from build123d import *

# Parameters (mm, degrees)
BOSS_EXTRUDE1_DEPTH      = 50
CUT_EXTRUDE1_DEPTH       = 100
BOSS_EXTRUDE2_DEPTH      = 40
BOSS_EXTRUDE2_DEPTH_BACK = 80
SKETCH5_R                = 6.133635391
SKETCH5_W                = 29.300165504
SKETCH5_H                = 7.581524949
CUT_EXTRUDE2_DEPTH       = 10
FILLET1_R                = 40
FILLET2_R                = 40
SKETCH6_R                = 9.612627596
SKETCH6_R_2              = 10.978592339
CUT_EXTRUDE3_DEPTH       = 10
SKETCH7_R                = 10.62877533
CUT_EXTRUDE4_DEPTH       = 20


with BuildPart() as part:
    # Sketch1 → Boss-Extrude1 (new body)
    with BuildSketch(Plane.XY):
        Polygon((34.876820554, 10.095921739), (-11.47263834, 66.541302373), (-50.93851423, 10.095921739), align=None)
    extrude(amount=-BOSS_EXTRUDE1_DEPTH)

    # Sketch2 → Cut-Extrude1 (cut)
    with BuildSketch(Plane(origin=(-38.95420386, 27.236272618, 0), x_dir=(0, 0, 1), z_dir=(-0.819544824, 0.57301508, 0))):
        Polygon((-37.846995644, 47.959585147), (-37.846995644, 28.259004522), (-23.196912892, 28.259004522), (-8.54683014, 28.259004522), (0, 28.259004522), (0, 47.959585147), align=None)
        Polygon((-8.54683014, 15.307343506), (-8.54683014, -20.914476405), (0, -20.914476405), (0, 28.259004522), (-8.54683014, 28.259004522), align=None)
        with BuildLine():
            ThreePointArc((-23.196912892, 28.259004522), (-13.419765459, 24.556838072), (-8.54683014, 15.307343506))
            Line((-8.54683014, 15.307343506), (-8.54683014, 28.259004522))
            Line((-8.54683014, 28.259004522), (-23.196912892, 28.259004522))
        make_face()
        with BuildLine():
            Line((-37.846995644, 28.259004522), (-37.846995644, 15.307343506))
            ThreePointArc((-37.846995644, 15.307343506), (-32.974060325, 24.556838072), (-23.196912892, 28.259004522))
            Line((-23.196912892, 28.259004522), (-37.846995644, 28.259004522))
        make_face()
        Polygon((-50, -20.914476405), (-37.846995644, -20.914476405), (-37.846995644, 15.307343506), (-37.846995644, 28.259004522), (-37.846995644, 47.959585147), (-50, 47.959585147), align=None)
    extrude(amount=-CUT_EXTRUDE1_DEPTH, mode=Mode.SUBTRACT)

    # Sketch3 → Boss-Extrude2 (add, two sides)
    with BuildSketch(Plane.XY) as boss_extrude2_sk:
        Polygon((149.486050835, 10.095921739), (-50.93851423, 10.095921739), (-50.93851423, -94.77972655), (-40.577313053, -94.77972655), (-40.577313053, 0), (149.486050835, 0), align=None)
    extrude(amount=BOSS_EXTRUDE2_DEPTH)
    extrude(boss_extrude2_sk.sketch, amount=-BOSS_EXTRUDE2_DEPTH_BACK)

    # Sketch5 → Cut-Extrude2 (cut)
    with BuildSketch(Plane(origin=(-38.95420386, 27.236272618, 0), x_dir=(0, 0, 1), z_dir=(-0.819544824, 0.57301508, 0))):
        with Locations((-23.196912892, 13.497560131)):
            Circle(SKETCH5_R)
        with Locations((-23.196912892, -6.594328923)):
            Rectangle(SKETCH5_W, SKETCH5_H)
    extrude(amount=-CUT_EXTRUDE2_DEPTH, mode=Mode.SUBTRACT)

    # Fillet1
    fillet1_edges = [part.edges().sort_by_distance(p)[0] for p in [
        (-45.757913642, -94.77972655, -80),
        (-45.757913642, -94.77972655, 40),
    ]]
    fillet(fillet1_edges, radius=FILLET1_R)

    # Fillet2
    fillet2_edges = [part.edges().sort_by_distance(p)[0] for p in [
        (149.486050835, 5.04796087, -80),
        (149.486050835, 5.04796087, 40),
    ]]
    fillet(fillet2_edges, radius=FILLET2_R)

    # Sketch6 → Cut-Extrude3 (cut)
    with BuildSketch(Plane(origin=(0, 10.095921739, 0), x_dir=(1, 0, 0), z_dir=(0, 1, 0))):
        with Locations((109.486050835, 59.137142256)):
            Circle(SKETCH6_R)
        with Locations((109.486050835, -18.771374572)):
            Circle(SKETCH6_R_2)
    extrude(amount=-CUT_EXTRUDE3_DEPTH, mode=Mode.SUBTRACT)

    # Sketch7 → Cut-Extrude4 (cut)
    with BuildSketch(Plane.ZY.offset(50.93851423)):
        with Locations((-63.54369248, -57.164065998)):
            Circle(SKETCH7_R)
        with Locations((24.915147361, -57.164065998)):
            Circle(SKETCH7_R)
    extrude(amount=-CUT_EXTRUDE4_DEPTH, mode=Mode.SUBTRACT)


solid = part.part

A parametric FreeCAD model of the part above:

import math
import FreeCAD as App
import Part
import Sketcher
from FreeCAD import Vector
Q = App.Units.Quantity


def edges_at(feature, points):
    """Names of the edges that pass closest to the given points."""
    edges = feature.Shape.Edges
    near = lambda p: min(range(len(edges)), key=lambda i: edges[i].distToShape(Part.Vertex(*p))[0])
    return sorted({f"Edge{near(p) + 1}" for p in points})


def add_polygon(sketch, points):
    """Adds a closed chain of lines whose ends are joined by coincident constraints."""
    first, n = sketch.GeometryCount, len(points)
    for a, b in zip(points, points[1:] + points[:1]):
        sketch.addGeometry(Part.LineSegment(App.Vector(*a, 0), App.Vector(*b, 0)), False)
    for i in range(n):
        sketch.addConstraint(Sketcher.Constraint("Coincident", first + i, 2, first + (i + 1) % n, 1))

doc = App.newDocument("Part")
body = doc.addObject("PartDesign::Body", "Body")

# Sketch on XY plane
sketch1 = body.newObject("Sketcher::SketchObject", "Sketch")
sketch1.AttachmentSupport = (doc.getObject("XY_Plane"), [""])
sketch1.MapMode = "FlatFace"
add_polygon(sketch1, [(34.876821, 10.095922), (-11.472638, 66.541302), (-50.938514, 10.095922)])  # lines 0-2
sketch1.addConstraint(Sketcher.Constraint("Horizontal", 2))
sketch1.addConstraint(Sketcher.Constraint("Distance", 1, Q("68.874062 mm")))
sketch1.addConstraint(Sketcher.Constraint("DistanceX", 2, 1, 2, 2, Q("85.815335 mm")))
sketch1.addConstraint(Sketcher.Constraint("DistanceX", 0, 2, -1, 1, Q("11.472638 mm")))
sketch1.addConstraint(Sketcher.Constraint("DistanceY", -1, 1, 1, 2, Q("10.095922 mm")))
sketch1.addConstraint(Sketcher.Constraint("DistanceX", -1, 1, 2, 2, Q("34.876821 mm")))
pad1 = body.newObject("PartDesign::Pad", "Pad")
pad1.Profile = sketch1
pad1.Length = 50
pad1.Reversed = True

# Sketch on an angled plane
sketch2 = body.newObject("Sketcher::SketchObject", "Sketch001")
sketch2.Placement = App.Placement(Vector(-38.954204, 27.236273, 0), App.Rotation(Vector(0, 0, 1), Vector(0.57301508, 0.819544824, 0), Vector(-0.819544824, 0.57301508, 0), "ZXY"))
sketch2.addGeometry(Part.ArcOfCircle(Part.Circle(Vector(-23.196913, 13.49756, 0), Vector(0, 0, 1), 14.761444), math.radians(90), math.radians(172.957702)), False)
sketch2.addGeometry(Part.ArcOfCircle(Part.Circle(Vector(-23.196913, 13.49756, 0), Vector(0, 0, 1), 14.761444), math.radians(7.042298), math.radians(90)), False)
sketch2.addGeometry(Part.LineSegment(Vector(-8.54683, 15.307344, 0), Vector(-8.54683, -20.914476, 0)), False)
sketch2.addGeometry(Part.LineSegment(Vector(-8.54683, -20.914476, 0), Vector(0, -20.914476, 0)), False)
sketch2.addGeometry(Part.LineSegment(Vector(0, -20.914476, 0), Vector(0, 47.959585, 0)), False)
sketch2.addGeometry(Part.LineSegment(Vector(0, 47.959585, 0), Vector(-50, 47.959585, 0)), False)
sketch2.addGeometry(Part.LineSegment(Vector(-50, 47.959585, 0), Vector(-50, -20.914476, 0)), False)
sketch2.addGeometry(Part.LineSegment(Vector(-50, -20.914476, 0), Vector(-37.846996, -20.914476, 0)), False)
sketch2.addGeometry(Part.LineSegment(Vector(-37.846996, -20.914476, 0), Vector(-37.846996, 15.307344, 0)), False)
sketch2.addConstraint(Sketcher.Constraint("Tangent", 0, 1, 1, 2))
sketch2.addConstraint(Sketcher.Constraint("Coincident", 1, 1, 2, 1))
sketch2.addConstraint(Sketcher.Constraint("Coincident", 2, 2, 3, 1))
sketch2.addConstraint(Sketcher.Constraint("Coincident", 3, 2, 4, 1))
sketch2.addConstraint(Sketcher.Constraint("Coincident", 4, 2, 5, 1))
sketch2.addConstraint(Sketcher.Constraint("Coincident", 5, 2, 6, 1))
sketch2.addConstraint(Sketcher.Constraint("Coincident", 6, 2, 7, 1))
sketch2.addConstraint(Sketcher.Constraint("Coincident", 7, 2, 8, 1))
sketch2.addConstraint(Sketcher.Constraint("Coincident", 8, 2, 0, 2))
sketch2.addConstraint(Sketcher.Constraint("Vertical", 2))
sketch2.addConstraint(Sketcher.Constraint("Horizontal", 3))
sketch2.addConstraint(Sketcher.Constraint("Vertical", 4))
sketch2.addConstraint(Sketcher.Constraint("Horizontal", 5))
sketch2.addConstraint(Sketcher.Constraint("Vertical", 6))
sketch2.addConstraint(Sketcher.Constraint("Horizontal", 7))
sketch2.addConstraint(Sketcher.Constraint("Vertical", 8))
sketch2.addConstraint(Sketcher.Constraint("Equal", 0, 1))
sketch2.addConstraint(Sketcher.Constraint("PointOnObject", 3, 2, -2))
sketch2.addConstraint(Sketcher.Constraint("Horizontal", 3, 2, 6, 2))
sketch2.addConstraint(Sketcher.Constraint("Horizontal", 1, 1, 8, 2))
sketch2.addConstraint(Sketcher.Constraint("Vertical", 1, 3, 0, 1))
sketch2.addConstraint(Sketcher.Constraint("DistanceX", 5, 2, 5, 1, Q("50 mm")))
sketch2.addConstraint(Sketcher.Constraint("Radius", 0, Q("14.761444 mm")))
sketch2.addConstraint(Sketcher.Constraint("DistanceX", 3, 1, 3, 2, Q("8.54683 mm")))
sketch2.addConstraint(Sketcher.Constraint("DistanceY", 2, 2, 2, 1, Q("36.22182 mm")))
sketch2.addConstraint(Sketcher.Constraint("DistanceY", 4, 1, 4, 2, Q("68.874062 mm")))
sketch2.addConstraint(Sketcher.Constraint("DistanceX", 7, 1, 7, 2, Q("12.153004 mm")))
sketch2.addConstraint(Sketcher.Constraint("DistanceY", -1, 1, 0, 3, Q("13.49756 mm")))
pocket1 = body.newObject("PartDesign::Pocket", "Pocket")
pocket1.Profile = sketch2
pocket1.Length = 100

# Sketch on XY plane
sketch3 = body.newObject("Sketcher::SketchObject", "Sketch002")
sketch3.AttachmentSupport = (doc.getObject("XY_Plane"), [""])
sketch3.MapMode = "FlatFace"
add_polygon(sketch3, [(149.486051, 10.095922), (-50.938514, 10.095922), (-50.938514, -94.779727), (-40.577313, -94.779727), (-40.577313, 0), (149.486051, 0)])  # lines 0-5
sketch3.addConstraint(Sketcher.Constraint("Horizontal", 0))
sketch3.addConstraint(Sketcher.Constraint("Vertical", 1))
sketch3.addConstraint(Sketcher.Constraint("Horizontal", 2))
sketch3.addConstraint(Sketcher.Constraint("Vertical", 3))
sketch3.addConstraint(Sketcher.Constraint("Horizontal", 4))
sketch3.addConstraint(Sketcher.Constraint("Vertical", 5))
sketch3.addConstraint(Sketcher.Constraint("PointOnObject", 3, 2, -1))
sketch3.addConstraint(Sketcher.Constraint("DistanceX", 2, 1, 2, 2, Q("10.361201 mm")))
sketch3.addConstraint(Sketcher.Constraint("DistanceY", 1, 2, 1, 1, Q("104.875648 mm")))
sketch3.addConstraint(Sketcher.Constraint("DistanceY", 5, 1, 5, 2, Q("10.095922 mm")))
sketch3.addConstraint(Sketcher.Constraint("DistanceX", 0, 2, 0, 1, Q("200.424565 mm")))
sketch3.addConstraint(Sketcher.Constraint("DistanceX", -1, 1, 4, 2, Q("149.486051 mm")))
pad2 = body.newObject("PartDesign::Pad", "Pad001")
pad2.Profile = sketch3
pad2.Type = "TwoLengths"
pad2.Length = 40
pad2.Length2 = 80

# Sketch on an angled plane
sketch4 = body.newObject("Sketcher::SketchObject", "Sketch003")
sketch4.Placement = App.Placement(Vector(-38.954204, 27.236273, 0), App.Rotation(Vector(0, 0, 1), Vector(0.57301508, 0.819544824, 0), Vector(-0.819544824, 0.57301508, 0), "ZXY"))
sketch4.addGeometry(Part.Circle(Vector(-23.196913, 13.49756, 0), Vector(0, 0, 1), 6.133635), False)  # 0
add_polygon(sketch4, [(-37.846996, -2.803566), (-37.846996, -10.385091), (-8.54683, -10.385091), (-8.54683, -2.803566)])  # lines 1-4
sketch4.addConstraint(Sketcher.Constraint("Vertical", 1))
sketch4.addConstraint(Sketcher.Constraint("Horizontal", 2))
sketch4.addConstraint(Sketcher.Constraint("Vertical", 3))
sketch4.addConstraint(Sketcher.Constraint("Horizontal", 4))
sketch4.addConstraint(Sketcher.Constraint("Diameter", 0, Q("12.267271 mm")))
sketch4.addConstraint(Sketcher.Constraint("DistanceX", 2, 1, 2, 2, Q("29.300166 mm")))
sketch4.addConstraint(Sketcher.Constraint("DistanceY", 1, 2, 1, 1, Q("7.581525 mm")))
sketch4.addConstraint(Sketcher.Constraint("DistanceY", -1, 1, 0, 3, Q("13.49756 mm")))
sketch4.addConstraint(Sketcher.Constraint("DistanceY", 1, 2, -1, 1, Q("10.385091 mm")))
sketch4.addConstraint(Sketcher.Constraint("DistanceX", 2, 2, -1, 1, Q("8.54683 mm")))
sketch4.addConstraint(Sketcher.Constraint("DistanceX", 0, 3, -1, 1, Q("23.196913 mm")))
pocket2 = body.newObject("PartDesign::Pocket", "Pocket001")
pocket2.Profile = sketch4
pocket2.Length = 10
doc.recompute()

fillet = body.newObject("PartDesign::Fillet", "Fillet")
fillet.Base = (pocket2, edges_at(pocket2, [(-45.758, -94.78, -80), (-45.758, -94.78, 40)]))
fillet.Radius = 40
doc.recompute()

fillet2 = body.newObject("PartDesign::Fillet", "Fillet001")
fillet2.Base = (fillet, edges_at(fillet, [(149.486, 5.048, -80), (149.486, 5.048, 40)]))
fillet2.Radius = 40

# Sketch on XZ plane
sketch5 = body.newObject("Sketcher::SketchObject", "Sketch004")
sketch5.AttachmentSupport = (doc.getObject("XZ_Plane"), [""])
sketch5.MapMode = "FlatFace"
sketch5.AttachmentOffset = App.Placement(Vector(0, 0, -10.095922), App.Rotation())
sketch5.addGeometry(Part.Circle(Vector(109.486051, -59.137142, 0), Vector(0, 0, 1), 9.612628), False)
sketch5.addGeometry(Part.Circle(Vector(109.486051, 18.771375, 0), Vector(0, 0, 1), 10.978592), False)
sketch5.addConstraint(Sketcher.Constraint("Vertical", 0, 3, 1, 3))
sketch5.addConstraint(Sketcher.Constraint("Diameter", 0, Q("19.225255 mm")))
sketch5.addConstraint(Sketcher.Constraint("Diameter", 1, Q("21.957185 mm")))
sketch5.addConstraint(Sketcher.Constraint("DistanceX", -1, 1, 0, 3, Q("109.486051 mm")))
sketch5.addConstraint(Sketcher.Constraint("DistanceY", 0, 3, -1, 1, Q("59.137142 mm")))
sketch5.addConstraint(Sketcher.Constraint("DistanceY", -1, 1, 1, 3, Q("18.771375 mm")))
pocket3 = body.newObject("PartDesign::Pocket", "Pocket002")
pocket3.Profile = sketch5
pocket3.Length = 10
pocket3.Reversed = True

# Sketch on YZ plane
sketch6 = body.newObject("Sketcher::SketchObject", "Sketch005")
sketch6.AttachmentSupport = (doc.getObject("YZ_Plane"), [""])
sketch6.MapMode = "FlatFace"
sketch6.AttachmentOffset = App.Placement(Vector(0, 0, -50.938514), App.Rotation())
sketch6.addGeometry(Part.Circle(Vector(-57.164066, -63.543692, 0), Vector(0, 0, 1), 10.628775), False)
sketch6.addGeometry(Part.Circle(Vector(-57.164066, 24.915147, 0), Vector(0, 0, 1), 10.628775), False)
sketch6.addConstraint(Sketcher.Constraint("Equal", 0, 1))
sketch6.addConstraint(Sketcher.Constraint("Vertical", 0, 3, 1, 3))
sketch6.addConstraint(Sketcher.Constraint("Diameter", 0, Q("21.257551 mm")))
sketch6.addConstraint(Sketcher.Constraint("DistanceY", 0, 3, 1, 3, Q("88.45884 mm")))
sketch6.addConstraint(Sketcher.Constraint("DistanceX", 0, 3, -1, 1, Q("57.164066 mm")))
sketch6.addConstraint(Sketcher.Constraint("DistanceY", 0, 3, -1, 1, Q("63.543692 mm")))
pocket4 = body.newObject("PartDesign::Pocket", "Pocket003")
pocket4.Profile = sketch6
pocket4.Length = 20
pocket4.Reversed = True

doc.recompute()
